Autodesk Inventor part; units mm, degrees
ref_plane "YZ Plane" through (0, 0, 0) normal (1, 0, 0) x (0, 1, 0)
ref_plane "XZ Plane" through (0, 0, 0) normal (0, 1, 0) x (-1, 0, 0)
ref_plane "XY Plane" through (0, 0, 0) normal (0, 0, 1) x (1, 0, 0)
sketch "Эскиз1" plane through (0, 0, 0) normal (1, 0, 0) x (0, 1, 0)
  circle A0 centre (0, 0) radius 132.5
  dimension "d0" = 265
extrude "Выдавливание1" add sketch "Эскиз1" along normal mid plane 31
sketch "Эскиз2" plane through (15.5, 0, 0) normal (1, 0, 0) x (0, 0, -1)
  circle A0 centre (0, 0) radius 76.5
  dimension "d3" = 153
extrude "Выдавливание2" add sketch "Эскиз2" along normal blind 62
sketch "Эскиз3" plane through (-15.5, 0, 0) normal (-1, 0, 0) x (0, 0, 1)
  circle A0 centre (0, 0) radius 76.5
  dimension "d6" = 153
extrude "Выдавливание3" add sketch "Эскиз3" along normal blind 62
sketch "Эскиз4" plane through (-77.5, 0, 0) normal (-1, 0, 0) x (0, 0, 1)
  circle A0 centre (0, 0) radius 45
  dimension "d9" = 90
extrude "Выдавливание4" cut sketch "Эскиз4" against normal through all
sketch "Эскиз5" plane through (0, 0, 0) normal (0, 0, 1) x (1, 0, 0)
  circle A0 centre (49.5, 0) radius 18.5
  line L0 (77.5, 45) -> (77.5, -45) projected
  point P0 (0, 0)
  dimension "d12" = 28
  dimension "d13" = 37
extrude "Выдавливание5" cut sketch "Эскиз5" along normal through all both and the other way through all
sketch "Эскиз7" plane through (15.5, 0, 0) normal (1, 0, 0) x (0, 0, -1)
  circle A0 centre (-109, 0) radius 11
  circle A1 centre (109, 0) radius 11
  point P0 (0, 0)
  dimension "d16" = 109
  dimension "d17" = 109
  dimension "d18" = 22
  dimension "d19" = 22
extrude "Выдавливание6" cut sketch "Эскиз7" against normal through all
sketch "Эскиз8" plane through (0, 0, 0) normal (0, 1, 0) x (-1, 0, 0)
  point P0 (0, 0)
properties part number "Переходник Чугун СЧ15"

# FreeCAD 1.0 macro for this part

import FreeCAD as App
import Part
import Sketcher
from FreeCAD import Vector
Q = App.Units.Quantity

doc = App.newDocument("Part")
params = doc.addObject("Spreadsheet::Sheet", "Params")
for row, (alias, value) in enumerate([
    ("sketch1_diameter", "265 mm"),
    ("pad1_length", "31 mm"),
    ("sketch2_diameter", "153 mm"),
    ("pad2_length", "62 mm"),
    ("sketch3_diameter", "153 mm"),
    ("pad3_length", "62 mm"),
    ("sketch4_diameter", "90 mm"),
    ("sketch5_diameter", "37 mm"),
    ("sketch6_diameter", "22 mm"),
], start=1):
    params.set(f"A{row}", alias)
    params.set(f"B{row}", "=" + value)
    params.setAlias(f"B{row}", alias)

body = doc.addObject("PartDesign::Body", "Body")

sketch1 = body.newObject("Sketcher::SketchObject", "Sketch")
sketch1.AttachmentSupport = (doc.getObject("YZ_Plane"), [""])
sketch1.MapMode = "FlatFace"
sketch1.addGeometry(Part.Circle(Vector(0, 0, 0), Vector(0, 0, 1), 132), False)
sketch1.addConstraint(Sketcher.Constraint("Coincident", 0, 3, -1, 1))
sketch1.addConstraint(Sketcher.Constraint("Diameter", 0, Q("265 mm")))
sketch1.setExpression("Constraints[1]", "Params.sketch1_diameter")
pad1 = body.newObject("PartDesign::Pad", "Pad")
pad1.Profile = sketch1
pad1.setExpression("Length", "Params.pad1_length")
pad1.Midplane = True

sketch2 = body.newObject("Sketcher::SketchObject", "Sketch001")
sketch2.AttachmentSupport = (doc.getObject("YZ_Plane"), [""])
sketch2.MapMode = "FlatFace"
sketch2.AttachmentOffset = App.Placement(Vector(0, 0, 15.5), App.Rotation())
sketch2.addGeometry(Part.Circle(Vector(0, 0, 0), Vector(0, 0, 1), 76), False)
sketch2.addConstraint(Sketcher.Constraint("Coincident", 0, 3, -1, 1))
sketch2.addConstraint(Sketcher.Constraint("Diameter", 0, Q("153 mm")))
sketch2.setExpression("Constraints[1]", "Params.sketch2_diameter")
pad2 = body.newObject("PartDesign::Pad", "Pad001")
pad2.Profile = sketch2
pad2.setExpression("Length", "Params.pad2_length")

sketch3 = body.newObject("Sketcher::SketchObject", "Sketch002")
sketch3.AttachmentSupport = (doc.getObject("YZ_Plane"), [""])
sketch3.MapMode = "FlatFace"
sketch3.AttachmentOffset = App.Placement(Vector(0, 0, -15.5), App.Rotation())
sketch3.addGeometry(Part.Circle(Vector(0, 0, 0), Vector(0, 0, 1), 76), False)
sketch3.addConstraint(Sketcher.Constraint("Coincident", 0, 3, -1, 1))
sketch3.addConstraint(Sketcher.Constraint("Diameter", 0, Q("153 mm")))
sketch3.setExpression("Constraints[1]", "Params.sketch3_diameter")
pad3 = body.newObject("PartDesign::Pad", "Pad002")
pad3.Profile = sketch3
pad3.setExpression("Length", "Params.pad3_length")
pad3.Reversed = True

sketch4 = body.newObject("Sketcher::SketchObject", "Sketch003")
sketch4.AttachmentSupport = (doc.getObject("YZ_Plane"), [""])
sketch4.MapMode = "FlatFace"
sketch4.AttachmentOffset = App.Placement(Vector(0, 0, -77.5), App.Rotation())
sketch4.addGeometry(Part.Circle(Vector(0, 0, 0), Vector(0, 0, 1), 45), False)
sketch4.addConstraint(Sketcher.Constraint("Coincident", 0, 3, -1, 1))
sketch4.addConstraint(Sketcher.Constraint("Diameter", 0, Q("90 mm")))
sketch4.setExpression("Constraints[1]", "Params.sketch4_diameter")
pocket1 = body.newObject("PartDesign::Pocket", "Pocket")
pocket1.Profile = sketch4
pocket1.Type = "ThroughAll"
pocket1.Reversed = True

sketch5 = body.newObject("Sketcher::SketchObject", "Sketch004")
sketch5.AttachmentSupport = (doc.getObject("XY_Plane"), [""])
sketch5.MapMode = "FlatFace"
sketch5.addGeometry(Part.Circle(Vector(50, 0, 0), Vector(0, 0, 1), 18), False)
sketch5.addConstraint(Sketcher.Constraint("PointOnObject", 0, 3, -1))
sketch5.addConstraint(Sketcher.Constraint("Diameter", 0, Q("37 mm")))
sketch5.addConstraint(Sketcher.Constraint("DistanceX", -1, 1, 0, 3, Q("49.5 mm")))
sketch5.setExpression("Constraints[1]", "Params.sketch5_diameter")
pocket2 = body.newObject("PartDesign::Pocket", "Pocket001")
pocket2.Profile = sketch5
pocket2.Type = "ThroughAll"
pocket2.Midplane = True

sketch6 = body.newObject("Sketcher::SketchObject", "Sketch005")
sketch6.AttachmentSupport = (doc.getObject("YZ_Plane"), [""])
sketch6.MapMode = "FlatFace"
sketch6.AttachmentOffset = App.Placement(Vector(0, 0, 15.5), App.Rotation())
sketch6.addGeometry(Part.Circle(Vector(0, 109, 0), Vector(0, 0, 1), 11), False)
sketch6.addGeometry(Part.Circle(Vector(0, -109, 0), Vector(0, 0, 1), 11), False)
sketch6.addConstraint(Sketcher.Constraint("Equal", 0, 1))
sketch6.addConstraint(Sketcher.Constraint("Symmetric", 0, 3, 1, 3, -1, 1))
sketch6.addConstraint(Sketcher.Constraint("PointOnObject", 0, 3, -2))
sketch6.addConstraint(Sketcher.Constraint("Diameter", 0, Q("22 mm")))
sketch6.addConstraint(Sketcher.Constraint("DistanceY", -1, 1, 0, 3, Q("109 mm")))
sketch6.setExpression("Constraints[3]", "Params.sketch6_diameter")
pocket3 = body.newObject("PartDesign::Pocket", "Pocket002")
pocket3.Profile = sketch6
pocket3.Type = "ThroughAll"

doc.recompute()
